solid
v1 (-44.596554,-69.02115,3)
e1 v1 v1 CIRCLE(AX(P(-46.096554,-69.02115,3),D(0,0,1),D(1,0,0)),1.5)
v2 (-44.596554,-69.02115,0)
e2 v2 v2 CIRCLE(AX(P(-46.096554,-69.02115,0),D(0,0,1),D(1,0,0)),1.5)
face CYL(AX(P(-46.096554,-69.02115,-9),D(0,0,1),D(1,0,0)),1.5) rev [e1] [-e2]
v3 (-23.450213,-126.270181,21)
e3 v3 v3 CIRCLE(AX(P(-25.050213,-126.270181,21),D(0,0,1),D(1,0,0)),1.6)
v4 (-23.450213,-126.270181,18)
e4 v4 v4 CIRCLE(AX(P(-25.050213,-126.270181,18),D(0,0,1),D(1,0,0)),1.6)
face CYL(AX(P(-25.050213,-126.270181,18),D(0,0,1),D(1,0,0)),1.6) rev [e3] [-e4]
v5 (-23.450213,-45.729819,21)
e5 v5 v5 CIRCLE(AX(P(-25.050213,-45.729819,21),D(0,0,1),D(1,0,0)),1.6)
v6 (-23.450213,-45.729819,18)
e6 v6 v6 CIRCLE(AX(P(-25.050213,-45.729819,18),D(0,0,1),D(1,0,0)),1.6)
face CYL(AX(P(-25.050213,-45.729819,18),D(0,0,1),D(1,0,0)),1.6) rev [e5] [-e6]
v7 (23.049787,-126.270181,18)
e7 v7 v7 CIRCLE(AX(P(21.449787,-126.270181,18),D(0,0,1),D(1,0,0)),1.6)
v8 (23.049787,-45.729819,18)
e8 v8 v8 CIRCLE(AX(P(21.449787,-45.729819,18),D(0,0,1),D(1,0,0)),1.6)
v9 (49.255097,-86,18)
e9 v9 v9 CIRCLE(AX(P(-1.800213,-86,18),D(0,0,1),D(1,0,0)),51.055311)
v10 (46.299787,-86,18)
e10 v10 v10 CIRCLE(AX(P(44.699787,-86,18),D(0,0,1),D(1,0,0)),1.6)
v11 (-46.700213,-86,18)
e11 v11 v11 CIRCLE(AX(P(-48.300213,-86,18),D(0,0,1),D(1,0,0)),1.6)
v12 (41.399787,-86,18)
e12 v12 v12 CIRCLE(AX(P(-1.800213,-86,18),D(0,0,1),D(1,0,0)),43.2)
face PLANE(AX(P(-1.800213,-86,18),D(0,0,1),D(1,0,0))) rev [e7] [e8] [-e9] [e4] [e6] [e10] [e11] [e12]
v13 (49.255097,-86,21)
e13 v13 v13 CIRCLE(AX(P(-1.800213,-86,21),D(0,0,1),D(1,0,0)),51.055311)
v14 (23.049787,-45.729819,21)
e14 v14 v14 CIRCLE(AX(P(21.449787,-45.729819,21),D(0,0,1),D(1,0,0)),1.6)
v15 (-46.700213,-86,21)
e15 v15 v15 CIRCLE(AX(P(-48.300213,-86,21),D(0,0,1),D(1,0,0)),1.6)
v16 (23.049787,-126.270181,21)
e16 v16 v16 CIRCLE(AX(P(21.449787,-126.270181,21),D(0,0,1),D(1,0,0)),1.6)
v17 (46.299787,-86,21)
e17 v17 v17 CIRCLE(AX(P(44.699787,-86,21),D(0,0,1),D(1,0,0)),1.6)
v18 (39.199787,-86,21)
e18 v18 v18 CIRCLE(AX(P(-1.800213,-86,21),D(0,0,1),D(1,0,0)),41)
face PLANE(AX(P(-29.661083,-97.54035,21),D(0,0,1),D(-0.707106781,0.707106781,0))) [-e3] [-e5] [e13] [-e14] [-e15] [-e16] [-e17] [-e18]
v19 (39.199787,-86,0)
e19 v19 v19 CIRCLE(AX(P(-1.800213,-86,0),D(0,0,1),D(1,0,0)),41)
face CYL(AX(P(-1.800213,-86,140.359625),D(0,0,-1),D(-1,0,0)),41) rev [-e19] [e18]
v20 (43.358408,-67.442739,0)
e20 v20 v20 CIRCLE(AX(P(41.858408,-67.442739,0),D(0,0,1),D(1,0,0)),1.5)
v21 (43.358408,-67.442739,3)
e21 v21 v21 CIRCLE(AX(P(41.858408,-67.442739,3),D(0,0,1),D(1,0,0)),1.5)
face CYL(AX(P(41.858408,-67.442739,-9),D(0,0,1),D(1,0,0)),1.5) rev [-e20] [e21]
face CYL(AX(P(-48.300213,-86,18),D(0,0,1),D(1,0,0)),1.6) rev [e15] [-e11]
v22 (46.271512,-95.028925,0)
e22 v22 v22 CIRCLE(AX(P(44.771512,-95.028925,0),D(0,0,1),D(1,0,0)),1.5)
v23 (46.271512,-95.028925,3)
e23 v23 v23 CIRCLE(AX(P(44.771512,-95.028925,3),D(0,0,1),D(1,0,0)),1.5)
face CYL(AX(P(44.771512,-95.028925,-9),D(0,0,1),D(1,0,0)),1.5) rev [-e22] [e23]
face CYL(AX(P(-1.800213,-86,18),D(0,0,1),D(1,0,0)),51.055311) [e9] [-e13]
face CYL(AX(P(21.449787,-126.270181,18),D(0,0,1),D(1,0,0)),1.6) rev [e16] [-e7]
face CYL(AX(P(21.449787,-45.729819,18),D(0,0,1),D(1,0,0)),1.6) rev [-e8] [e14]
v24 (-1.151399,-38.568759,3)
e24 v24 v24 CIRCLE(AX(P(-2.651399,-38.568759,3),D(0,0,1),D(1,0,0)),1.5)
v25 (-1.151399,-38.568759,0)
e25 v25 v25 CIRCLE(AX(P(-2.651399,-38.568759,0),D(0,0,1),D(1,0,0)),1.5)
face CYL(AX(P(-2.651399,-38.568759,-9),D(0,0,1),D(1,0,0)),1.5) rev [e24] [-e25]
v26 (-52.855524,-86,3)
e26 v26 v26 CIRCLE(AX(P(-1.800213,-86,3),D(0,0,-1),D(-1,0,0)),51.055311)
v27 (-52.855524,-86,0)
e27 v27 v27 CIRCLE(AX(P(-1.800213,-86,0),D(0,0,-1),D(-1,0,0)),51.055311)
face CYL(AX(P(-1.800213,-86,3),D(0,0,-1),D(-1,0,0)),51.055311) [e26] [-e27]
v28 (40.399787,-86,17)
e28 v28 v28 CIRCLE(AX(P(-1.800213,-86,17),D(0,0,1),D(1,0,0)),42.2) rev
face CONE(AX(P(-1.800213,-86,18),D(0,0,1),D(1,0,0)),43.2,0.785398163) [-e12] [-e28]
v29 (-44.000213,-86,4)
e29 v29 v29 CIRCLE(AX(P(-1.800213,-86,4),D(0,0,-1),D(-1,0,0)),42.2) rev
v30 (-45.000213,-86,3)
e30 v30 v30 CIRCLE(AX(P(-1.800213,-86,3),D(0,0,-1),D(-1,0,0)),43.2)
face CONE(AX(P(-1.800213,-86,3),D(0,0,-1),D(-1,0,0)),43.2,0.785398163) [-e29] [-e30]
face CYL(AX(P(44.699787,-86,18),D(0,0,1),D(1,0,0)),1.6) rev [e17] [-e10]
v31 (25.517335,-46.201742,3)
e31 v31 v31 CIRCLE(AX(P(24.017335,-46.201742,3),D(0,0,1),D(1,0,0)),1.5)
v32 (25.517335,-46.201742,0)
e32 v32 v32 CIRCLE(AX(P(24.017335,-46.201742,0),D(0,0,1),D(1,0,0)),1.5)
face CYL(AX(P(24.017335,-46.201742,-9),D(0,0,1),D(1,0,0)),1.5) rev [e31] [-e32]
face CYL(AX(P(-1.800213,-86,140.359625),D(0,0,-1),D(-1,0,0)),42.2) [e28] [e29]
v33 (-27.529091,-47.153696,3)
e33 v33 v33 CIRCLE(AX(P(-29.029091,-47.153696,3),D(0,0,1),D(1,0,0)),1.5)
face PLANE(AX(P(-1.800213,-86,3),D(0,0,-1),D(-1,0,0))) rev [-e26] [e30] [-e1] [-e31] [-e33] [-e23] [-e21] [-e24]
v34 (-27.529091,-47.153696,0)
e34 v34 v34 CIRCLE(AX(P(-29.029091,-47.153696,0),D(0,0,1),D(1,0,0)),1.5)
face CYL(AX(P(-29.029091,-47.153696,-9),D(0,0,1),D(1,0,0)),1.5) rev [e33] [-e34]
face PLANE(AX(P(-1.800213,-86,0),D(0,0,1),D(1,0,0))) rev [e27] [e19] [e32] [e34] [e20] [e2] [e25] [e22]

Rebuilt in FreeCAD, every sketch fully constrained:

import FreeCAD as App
import Part
import Sketcher
from FreeCAD import Vector
Q = App.Units.Quantity


def edges_at(feature, points):
    """Names of the edges that pass closest to the given points."""
    edges = feature.Shape.Edges
    near = lambda p: min(range(len(edges)), key=lambda i: edges[i].distToShape(Part.Vertex(*p))[0])
    return sorted({f"Edge{near(p) + 1}" for p in points})

doc = App.newDocument("Part")
params = doc.addObject("Spreadsheet::Sheet", "Params")
for row, (alias, value) in enumerate([
    ("sketch1_diameter", "82 mm"),
    ("sketch1_diameter2", "84.4 mm"),
    ("pad1_length", "21 mm"),
    ("sketch2_diameter", "84.4 mm"),
    ("pad2_length", "3 mm"),
    ("sketch3_diameter", "3 mm"),
    ("pocket1_length", "12 mm"),
    ("sketch4_diameter", "3.2 mm"),
    ("sketch4_diameter2", "84.4 mm"),
    ("pad3_length", "3 mm"),
    ("chamfer_size", "1 mm"),
], start=1):
    params.set(f"A{row}", alias)
    params.set(f"B{row}", "=" + value)
    params.setAlias(f"B{row}", alias)

body = doc.addObject("PartDesign::Body", "Body")

sketch1 = body.newObject("Sketcher::SketchObject", "Sketch")
sketch1.AttachmentSupport = (doc.getObject("XY_Plane"), [""])
sketch1.MapMode = "FlatFace"
sketch1.addGeometry([
    Part.Circle(Vector(-2, -86, 0), Vector(0, 0, 1), 42),
    Part.Circle(Vector(-2, -86, 0), Vector(0, 0, 1), 41),
], False)
sketch1.addConstraint([
    Sketcher.Constraint("Coincident", 1, 3, 0, 3),
    Sketcher.Constraint("Diameter", 1, Q("82 mm")),
    Sketcher.Constraint("Diameter", 0, Q("84.4 mm")),
    Sketcher.Constraint("DistanceY", 0, 3, -1, 1, Q("86 mm")),
    Sketcher.Constraint("DistanceX", 0, 3, -1, 1, Q("1.800213 mm")),
])
sketch1.setExpression("Constraints[1]", "Params.sketch1_diameter")
sketch1.setExpression("Constraints[2]", "Params.sketch1_diameter2")
pad1 = body.newObject("PartDesign::Pad", "Pad")
pad1.Profile = sketch1
pad1.setExpression("Length", "Params.pad1_length")

sketch2 = body.newObject("Sketcher::SketchObject", "Sketch001")
sketch2.AttachmentSupport = (doc.getObject("XY_Plane"), [""])
sketch2.MapMode = "FlatFace"
sketch2.addGeometry([
    Part.Circle(Vector(-2, -86, 0), Vector(0, 0, 1), 51),
    Part.Circle(Vector(-2, -86, 0), Vector(0, 0, 1), 42),
], False)
sketch2.addConstraint([
    Sketcher.Constraint("Coincident", 1, 3, 0, 3),
    Sketcher.Constraint("Diameter", 1, Q("84.4 mm")),
    Sketcher.Constraint("DistanceY", 0, 3, -1, 1, Q("86 mm")),
    Sketcher.Constraint("Diameter", 0, Q("102.110622 mm")),
    Sketcher.Constraint("DistanceX", 0, 3, -1, 1, Q("1.800213 mm")),
])
sketch2.setExpression("Constraints[1]", "Params.sketch2_diameter")
pad2 = body.newObject("PartDesign::Pad", "Pad001")
pad2.Profile = sketch2
pad2.setExpression("Length", "Params.pad2_length")

sketch3 = body.newObject("Sketcher::SketchObject", "Sketch002")
sketch3.AttachmentSupport = (doc.getObject("XY_Plane"), [""])
sketch3.MapMode = "FlatFace"
sketch3.AttachmentOffset = App.Placement(Vector(0, 0, 3), App.Rotation())
sketch3.addGeometry([
    Part.Circle(Vector(44.8, -95, 0), Vector(0, 0, 1), 1.5),
    Part.Circle(Vector(-2.7, -38.6, 0), Vector(0, 0, 1), 1.5),
    Part.Circle(Vector(41.9, -67.4, 0), Vector(0, 0, 1), 1.5),
    Part.Circle(Vector(24, -46.2, 0), Vector(0, 0, 1), 1.5),
    Part.Circle(Vector(-46.1, -69, 0), Vector(0, 0, 1), 1.5),
    Part.Circle(Vector(-29, -47.2, 0), Vector(0, 0, 1), 1.5),
], False)
sketch3.addConstraint([
    Sketcher.Constraint("Equal", 0, 1),
    Sketcher.Constraint("Equal", 1, 2),
    Sketcher.Constraint("Equal", 2, 3),
    Sketcher.Constraint("Equal", 3, 4),
    Sketcher.Constraint("Equal", 4, 5),
    Sketcher.Constraint("Diameter", 0, Q("3 mm")),
    Sketcher.Constraint("DistanceX", 1, 3, -1, 1, Q("2.651399 mm")),
    Sketcher.Constraint("DistanceX", 5, 3, 2, 3, Q("70.887499 mm")),
    Sketcher.Constraint("DistanceY", 1, 3, -1, 1, Q("38.568759 mm")),
    Sketcher.Constraint("DistanceY", 2, 3, -1, 1, Q("67.442739 mm")),
    Sketcher.Constraint("DistanceY", 4, 3, -1, 1, Q("69.02115 mm")),
    Sketcher.Constraint("DistanceX", 5, 3, -1, 1, Q("29.029091 mm")),
    Sketcher.Constraint("DistanceX", 1, 3, 0, 3, Q("47.422911 mm")),
    Sketcher.Constraint("DistanceX", 4, 3, 3, 3, Q("70.113889 mm")),
    Sketcher.Constraint("DistanceX", 4, 3, 2, 3, Q("87.954962 mm")),
    Sketcher.Constraint("DistanceY", 0, 3, 5, 3, Q("47.875229 mm")),
    Sketcher.Constraint("DistanceY", 0, 3, -1, 1, Q("95.028925 mm")),
    Sketcher.Constraint("DistanceY", 3, 3, -1, 1, Q("46.201742 mm")),
])
sketch3.setExpression("Constraints[5]", "Params.sketch3_diameter")
pocket1 = body.newObject("PartDesign::Pocket", "Pocket")
pocket1.Profile = sketch3
pocket1.setExpression("Length", "Params.pocket1_length")

sketch4 = body.newObject("Sketcher::SketchObject", "Sketch003")
sketch4.AttachmentSupport = (doc.getObject("XY_Plane"), [""])
sketch4.MapMode = "FlatFace"
sketch4.AttachmentOffset = App.Placement(Vector(0, 0, 18), App.Rotation())
sketch4.addGeometry([
    Part.Circle(Vector(-1.8, -86, 0), Vector(0, 0, 1), 51.1),
    Part.Circle(Vector(21.4, -45.7, 0), Vector(0, 0, 1), 1.6),
    Part.Circle(Vector(-25.1, -45.7, 0), Vector(0, 0, 1), 1.6),
    Part.Circle(Vector(44.7, -86, 0), Vector(0, 0, 1), 1.6),
    Part.Circle(Vector(-1.8, -86, 0), Vector(0, 0, 1), 42.2),
    Part.Circle(Vector(21.4, -126.3, 0), Vector(0, 0, 1), 1.6),
    Part.Circle(Vector(-48.3, -86, 0), Vector(0, 0, 1), 1.6),
    Part.Circle(Vector(-25.1, -126.3, 0), Vector(0, 0, 1), 1.6),
], False)
sketch4.addConstraint([
    Sketcher.Constraint("Coincident", 4, 3, 0, 3),
    Sketcher.Constraint("Equal", 1, 2),
    Sketcher.Constraint("Equal", 2, 3),
    Sketcher.Constraint("Equal", 3, 5),
    Sketcher.Constraint("Equal", 5, 6),
    Sketcher.Constraint("Equal", 6, 7),
    Sketcher.Constraint("Horizontal", 1, 3, 2, 3),
    Sketcher.Constraint("Horizontal", 0, 3, 3, 3),
    Sketcher.Constraint("Horizontal", 4, 3, 6, 3),
    Sketcher.Constraint("Horizontal", 5, 3, 7, 3),
    Sketcher.Constraint("Vertical", 1, 3, 5, 3),
    Sketcher.Constraint("Vertical", 2, 3, 7, 3),
    Sketcher.Constraint("Diameter", 1, Q("3.2 mm")),
    Sketcher.Constraint("Diameter", 4, Q("84.4 mm")),
    Sketcher.Constraint("DistanceY", 0, 3, -1, 1, Q("86 mm")),
    Sketcher.Constraint("DistanceX", 2, 3, 1, 3, Q("46.5 mm")),
    Sketcher.Constraint("DistanceX", 0, 3, 3, 3, Q("46.5 mm")),
    Sketcher.Constraint("DistanceX", 6, 3, 0, 3, Q("46.5 mm")),
    Sketcher.Constraint("Diameter", 0, Q("102.110622 mm")),
    Sketcher.Constraint("DistanceX", 0, 3, 1, 3, Q("23.25 mm")),
    Sketcher.Constraint("DistanceY", 1, 3, -1, 1, Q("45.729819 mm")),
    Sketcher.Constraint("DistanceY", 5, 3, -1, 1, Q("126.270181 mm")),
    Sketcher.Constraint("DistanceX", 0, 3, -1, 1, Q("1.800213 mm")),
])
sketch4.setExpression("Constraints[12]", "Params.sketch4_diameter")
sketch4.setExpression("Constraints[13]", "Params.sketch4_diameter2")
pad3 = body.newObject("PartDesign::Pad", "Pad002")
pad3.Profile = sketch4
pad3.setExpression("Length", "Params.pad3_length")
doc.recompute()

chamfer = body.newObject("PartDesign::Chamfer", "Chamfer")
chamfer.Base = (pad3, edges_at(pad3, [(-44, -86, 3), (-44, -86, 18)]))
chamfer.setExpression("Size", "Params.chamfer_size")

doc.recompute()
